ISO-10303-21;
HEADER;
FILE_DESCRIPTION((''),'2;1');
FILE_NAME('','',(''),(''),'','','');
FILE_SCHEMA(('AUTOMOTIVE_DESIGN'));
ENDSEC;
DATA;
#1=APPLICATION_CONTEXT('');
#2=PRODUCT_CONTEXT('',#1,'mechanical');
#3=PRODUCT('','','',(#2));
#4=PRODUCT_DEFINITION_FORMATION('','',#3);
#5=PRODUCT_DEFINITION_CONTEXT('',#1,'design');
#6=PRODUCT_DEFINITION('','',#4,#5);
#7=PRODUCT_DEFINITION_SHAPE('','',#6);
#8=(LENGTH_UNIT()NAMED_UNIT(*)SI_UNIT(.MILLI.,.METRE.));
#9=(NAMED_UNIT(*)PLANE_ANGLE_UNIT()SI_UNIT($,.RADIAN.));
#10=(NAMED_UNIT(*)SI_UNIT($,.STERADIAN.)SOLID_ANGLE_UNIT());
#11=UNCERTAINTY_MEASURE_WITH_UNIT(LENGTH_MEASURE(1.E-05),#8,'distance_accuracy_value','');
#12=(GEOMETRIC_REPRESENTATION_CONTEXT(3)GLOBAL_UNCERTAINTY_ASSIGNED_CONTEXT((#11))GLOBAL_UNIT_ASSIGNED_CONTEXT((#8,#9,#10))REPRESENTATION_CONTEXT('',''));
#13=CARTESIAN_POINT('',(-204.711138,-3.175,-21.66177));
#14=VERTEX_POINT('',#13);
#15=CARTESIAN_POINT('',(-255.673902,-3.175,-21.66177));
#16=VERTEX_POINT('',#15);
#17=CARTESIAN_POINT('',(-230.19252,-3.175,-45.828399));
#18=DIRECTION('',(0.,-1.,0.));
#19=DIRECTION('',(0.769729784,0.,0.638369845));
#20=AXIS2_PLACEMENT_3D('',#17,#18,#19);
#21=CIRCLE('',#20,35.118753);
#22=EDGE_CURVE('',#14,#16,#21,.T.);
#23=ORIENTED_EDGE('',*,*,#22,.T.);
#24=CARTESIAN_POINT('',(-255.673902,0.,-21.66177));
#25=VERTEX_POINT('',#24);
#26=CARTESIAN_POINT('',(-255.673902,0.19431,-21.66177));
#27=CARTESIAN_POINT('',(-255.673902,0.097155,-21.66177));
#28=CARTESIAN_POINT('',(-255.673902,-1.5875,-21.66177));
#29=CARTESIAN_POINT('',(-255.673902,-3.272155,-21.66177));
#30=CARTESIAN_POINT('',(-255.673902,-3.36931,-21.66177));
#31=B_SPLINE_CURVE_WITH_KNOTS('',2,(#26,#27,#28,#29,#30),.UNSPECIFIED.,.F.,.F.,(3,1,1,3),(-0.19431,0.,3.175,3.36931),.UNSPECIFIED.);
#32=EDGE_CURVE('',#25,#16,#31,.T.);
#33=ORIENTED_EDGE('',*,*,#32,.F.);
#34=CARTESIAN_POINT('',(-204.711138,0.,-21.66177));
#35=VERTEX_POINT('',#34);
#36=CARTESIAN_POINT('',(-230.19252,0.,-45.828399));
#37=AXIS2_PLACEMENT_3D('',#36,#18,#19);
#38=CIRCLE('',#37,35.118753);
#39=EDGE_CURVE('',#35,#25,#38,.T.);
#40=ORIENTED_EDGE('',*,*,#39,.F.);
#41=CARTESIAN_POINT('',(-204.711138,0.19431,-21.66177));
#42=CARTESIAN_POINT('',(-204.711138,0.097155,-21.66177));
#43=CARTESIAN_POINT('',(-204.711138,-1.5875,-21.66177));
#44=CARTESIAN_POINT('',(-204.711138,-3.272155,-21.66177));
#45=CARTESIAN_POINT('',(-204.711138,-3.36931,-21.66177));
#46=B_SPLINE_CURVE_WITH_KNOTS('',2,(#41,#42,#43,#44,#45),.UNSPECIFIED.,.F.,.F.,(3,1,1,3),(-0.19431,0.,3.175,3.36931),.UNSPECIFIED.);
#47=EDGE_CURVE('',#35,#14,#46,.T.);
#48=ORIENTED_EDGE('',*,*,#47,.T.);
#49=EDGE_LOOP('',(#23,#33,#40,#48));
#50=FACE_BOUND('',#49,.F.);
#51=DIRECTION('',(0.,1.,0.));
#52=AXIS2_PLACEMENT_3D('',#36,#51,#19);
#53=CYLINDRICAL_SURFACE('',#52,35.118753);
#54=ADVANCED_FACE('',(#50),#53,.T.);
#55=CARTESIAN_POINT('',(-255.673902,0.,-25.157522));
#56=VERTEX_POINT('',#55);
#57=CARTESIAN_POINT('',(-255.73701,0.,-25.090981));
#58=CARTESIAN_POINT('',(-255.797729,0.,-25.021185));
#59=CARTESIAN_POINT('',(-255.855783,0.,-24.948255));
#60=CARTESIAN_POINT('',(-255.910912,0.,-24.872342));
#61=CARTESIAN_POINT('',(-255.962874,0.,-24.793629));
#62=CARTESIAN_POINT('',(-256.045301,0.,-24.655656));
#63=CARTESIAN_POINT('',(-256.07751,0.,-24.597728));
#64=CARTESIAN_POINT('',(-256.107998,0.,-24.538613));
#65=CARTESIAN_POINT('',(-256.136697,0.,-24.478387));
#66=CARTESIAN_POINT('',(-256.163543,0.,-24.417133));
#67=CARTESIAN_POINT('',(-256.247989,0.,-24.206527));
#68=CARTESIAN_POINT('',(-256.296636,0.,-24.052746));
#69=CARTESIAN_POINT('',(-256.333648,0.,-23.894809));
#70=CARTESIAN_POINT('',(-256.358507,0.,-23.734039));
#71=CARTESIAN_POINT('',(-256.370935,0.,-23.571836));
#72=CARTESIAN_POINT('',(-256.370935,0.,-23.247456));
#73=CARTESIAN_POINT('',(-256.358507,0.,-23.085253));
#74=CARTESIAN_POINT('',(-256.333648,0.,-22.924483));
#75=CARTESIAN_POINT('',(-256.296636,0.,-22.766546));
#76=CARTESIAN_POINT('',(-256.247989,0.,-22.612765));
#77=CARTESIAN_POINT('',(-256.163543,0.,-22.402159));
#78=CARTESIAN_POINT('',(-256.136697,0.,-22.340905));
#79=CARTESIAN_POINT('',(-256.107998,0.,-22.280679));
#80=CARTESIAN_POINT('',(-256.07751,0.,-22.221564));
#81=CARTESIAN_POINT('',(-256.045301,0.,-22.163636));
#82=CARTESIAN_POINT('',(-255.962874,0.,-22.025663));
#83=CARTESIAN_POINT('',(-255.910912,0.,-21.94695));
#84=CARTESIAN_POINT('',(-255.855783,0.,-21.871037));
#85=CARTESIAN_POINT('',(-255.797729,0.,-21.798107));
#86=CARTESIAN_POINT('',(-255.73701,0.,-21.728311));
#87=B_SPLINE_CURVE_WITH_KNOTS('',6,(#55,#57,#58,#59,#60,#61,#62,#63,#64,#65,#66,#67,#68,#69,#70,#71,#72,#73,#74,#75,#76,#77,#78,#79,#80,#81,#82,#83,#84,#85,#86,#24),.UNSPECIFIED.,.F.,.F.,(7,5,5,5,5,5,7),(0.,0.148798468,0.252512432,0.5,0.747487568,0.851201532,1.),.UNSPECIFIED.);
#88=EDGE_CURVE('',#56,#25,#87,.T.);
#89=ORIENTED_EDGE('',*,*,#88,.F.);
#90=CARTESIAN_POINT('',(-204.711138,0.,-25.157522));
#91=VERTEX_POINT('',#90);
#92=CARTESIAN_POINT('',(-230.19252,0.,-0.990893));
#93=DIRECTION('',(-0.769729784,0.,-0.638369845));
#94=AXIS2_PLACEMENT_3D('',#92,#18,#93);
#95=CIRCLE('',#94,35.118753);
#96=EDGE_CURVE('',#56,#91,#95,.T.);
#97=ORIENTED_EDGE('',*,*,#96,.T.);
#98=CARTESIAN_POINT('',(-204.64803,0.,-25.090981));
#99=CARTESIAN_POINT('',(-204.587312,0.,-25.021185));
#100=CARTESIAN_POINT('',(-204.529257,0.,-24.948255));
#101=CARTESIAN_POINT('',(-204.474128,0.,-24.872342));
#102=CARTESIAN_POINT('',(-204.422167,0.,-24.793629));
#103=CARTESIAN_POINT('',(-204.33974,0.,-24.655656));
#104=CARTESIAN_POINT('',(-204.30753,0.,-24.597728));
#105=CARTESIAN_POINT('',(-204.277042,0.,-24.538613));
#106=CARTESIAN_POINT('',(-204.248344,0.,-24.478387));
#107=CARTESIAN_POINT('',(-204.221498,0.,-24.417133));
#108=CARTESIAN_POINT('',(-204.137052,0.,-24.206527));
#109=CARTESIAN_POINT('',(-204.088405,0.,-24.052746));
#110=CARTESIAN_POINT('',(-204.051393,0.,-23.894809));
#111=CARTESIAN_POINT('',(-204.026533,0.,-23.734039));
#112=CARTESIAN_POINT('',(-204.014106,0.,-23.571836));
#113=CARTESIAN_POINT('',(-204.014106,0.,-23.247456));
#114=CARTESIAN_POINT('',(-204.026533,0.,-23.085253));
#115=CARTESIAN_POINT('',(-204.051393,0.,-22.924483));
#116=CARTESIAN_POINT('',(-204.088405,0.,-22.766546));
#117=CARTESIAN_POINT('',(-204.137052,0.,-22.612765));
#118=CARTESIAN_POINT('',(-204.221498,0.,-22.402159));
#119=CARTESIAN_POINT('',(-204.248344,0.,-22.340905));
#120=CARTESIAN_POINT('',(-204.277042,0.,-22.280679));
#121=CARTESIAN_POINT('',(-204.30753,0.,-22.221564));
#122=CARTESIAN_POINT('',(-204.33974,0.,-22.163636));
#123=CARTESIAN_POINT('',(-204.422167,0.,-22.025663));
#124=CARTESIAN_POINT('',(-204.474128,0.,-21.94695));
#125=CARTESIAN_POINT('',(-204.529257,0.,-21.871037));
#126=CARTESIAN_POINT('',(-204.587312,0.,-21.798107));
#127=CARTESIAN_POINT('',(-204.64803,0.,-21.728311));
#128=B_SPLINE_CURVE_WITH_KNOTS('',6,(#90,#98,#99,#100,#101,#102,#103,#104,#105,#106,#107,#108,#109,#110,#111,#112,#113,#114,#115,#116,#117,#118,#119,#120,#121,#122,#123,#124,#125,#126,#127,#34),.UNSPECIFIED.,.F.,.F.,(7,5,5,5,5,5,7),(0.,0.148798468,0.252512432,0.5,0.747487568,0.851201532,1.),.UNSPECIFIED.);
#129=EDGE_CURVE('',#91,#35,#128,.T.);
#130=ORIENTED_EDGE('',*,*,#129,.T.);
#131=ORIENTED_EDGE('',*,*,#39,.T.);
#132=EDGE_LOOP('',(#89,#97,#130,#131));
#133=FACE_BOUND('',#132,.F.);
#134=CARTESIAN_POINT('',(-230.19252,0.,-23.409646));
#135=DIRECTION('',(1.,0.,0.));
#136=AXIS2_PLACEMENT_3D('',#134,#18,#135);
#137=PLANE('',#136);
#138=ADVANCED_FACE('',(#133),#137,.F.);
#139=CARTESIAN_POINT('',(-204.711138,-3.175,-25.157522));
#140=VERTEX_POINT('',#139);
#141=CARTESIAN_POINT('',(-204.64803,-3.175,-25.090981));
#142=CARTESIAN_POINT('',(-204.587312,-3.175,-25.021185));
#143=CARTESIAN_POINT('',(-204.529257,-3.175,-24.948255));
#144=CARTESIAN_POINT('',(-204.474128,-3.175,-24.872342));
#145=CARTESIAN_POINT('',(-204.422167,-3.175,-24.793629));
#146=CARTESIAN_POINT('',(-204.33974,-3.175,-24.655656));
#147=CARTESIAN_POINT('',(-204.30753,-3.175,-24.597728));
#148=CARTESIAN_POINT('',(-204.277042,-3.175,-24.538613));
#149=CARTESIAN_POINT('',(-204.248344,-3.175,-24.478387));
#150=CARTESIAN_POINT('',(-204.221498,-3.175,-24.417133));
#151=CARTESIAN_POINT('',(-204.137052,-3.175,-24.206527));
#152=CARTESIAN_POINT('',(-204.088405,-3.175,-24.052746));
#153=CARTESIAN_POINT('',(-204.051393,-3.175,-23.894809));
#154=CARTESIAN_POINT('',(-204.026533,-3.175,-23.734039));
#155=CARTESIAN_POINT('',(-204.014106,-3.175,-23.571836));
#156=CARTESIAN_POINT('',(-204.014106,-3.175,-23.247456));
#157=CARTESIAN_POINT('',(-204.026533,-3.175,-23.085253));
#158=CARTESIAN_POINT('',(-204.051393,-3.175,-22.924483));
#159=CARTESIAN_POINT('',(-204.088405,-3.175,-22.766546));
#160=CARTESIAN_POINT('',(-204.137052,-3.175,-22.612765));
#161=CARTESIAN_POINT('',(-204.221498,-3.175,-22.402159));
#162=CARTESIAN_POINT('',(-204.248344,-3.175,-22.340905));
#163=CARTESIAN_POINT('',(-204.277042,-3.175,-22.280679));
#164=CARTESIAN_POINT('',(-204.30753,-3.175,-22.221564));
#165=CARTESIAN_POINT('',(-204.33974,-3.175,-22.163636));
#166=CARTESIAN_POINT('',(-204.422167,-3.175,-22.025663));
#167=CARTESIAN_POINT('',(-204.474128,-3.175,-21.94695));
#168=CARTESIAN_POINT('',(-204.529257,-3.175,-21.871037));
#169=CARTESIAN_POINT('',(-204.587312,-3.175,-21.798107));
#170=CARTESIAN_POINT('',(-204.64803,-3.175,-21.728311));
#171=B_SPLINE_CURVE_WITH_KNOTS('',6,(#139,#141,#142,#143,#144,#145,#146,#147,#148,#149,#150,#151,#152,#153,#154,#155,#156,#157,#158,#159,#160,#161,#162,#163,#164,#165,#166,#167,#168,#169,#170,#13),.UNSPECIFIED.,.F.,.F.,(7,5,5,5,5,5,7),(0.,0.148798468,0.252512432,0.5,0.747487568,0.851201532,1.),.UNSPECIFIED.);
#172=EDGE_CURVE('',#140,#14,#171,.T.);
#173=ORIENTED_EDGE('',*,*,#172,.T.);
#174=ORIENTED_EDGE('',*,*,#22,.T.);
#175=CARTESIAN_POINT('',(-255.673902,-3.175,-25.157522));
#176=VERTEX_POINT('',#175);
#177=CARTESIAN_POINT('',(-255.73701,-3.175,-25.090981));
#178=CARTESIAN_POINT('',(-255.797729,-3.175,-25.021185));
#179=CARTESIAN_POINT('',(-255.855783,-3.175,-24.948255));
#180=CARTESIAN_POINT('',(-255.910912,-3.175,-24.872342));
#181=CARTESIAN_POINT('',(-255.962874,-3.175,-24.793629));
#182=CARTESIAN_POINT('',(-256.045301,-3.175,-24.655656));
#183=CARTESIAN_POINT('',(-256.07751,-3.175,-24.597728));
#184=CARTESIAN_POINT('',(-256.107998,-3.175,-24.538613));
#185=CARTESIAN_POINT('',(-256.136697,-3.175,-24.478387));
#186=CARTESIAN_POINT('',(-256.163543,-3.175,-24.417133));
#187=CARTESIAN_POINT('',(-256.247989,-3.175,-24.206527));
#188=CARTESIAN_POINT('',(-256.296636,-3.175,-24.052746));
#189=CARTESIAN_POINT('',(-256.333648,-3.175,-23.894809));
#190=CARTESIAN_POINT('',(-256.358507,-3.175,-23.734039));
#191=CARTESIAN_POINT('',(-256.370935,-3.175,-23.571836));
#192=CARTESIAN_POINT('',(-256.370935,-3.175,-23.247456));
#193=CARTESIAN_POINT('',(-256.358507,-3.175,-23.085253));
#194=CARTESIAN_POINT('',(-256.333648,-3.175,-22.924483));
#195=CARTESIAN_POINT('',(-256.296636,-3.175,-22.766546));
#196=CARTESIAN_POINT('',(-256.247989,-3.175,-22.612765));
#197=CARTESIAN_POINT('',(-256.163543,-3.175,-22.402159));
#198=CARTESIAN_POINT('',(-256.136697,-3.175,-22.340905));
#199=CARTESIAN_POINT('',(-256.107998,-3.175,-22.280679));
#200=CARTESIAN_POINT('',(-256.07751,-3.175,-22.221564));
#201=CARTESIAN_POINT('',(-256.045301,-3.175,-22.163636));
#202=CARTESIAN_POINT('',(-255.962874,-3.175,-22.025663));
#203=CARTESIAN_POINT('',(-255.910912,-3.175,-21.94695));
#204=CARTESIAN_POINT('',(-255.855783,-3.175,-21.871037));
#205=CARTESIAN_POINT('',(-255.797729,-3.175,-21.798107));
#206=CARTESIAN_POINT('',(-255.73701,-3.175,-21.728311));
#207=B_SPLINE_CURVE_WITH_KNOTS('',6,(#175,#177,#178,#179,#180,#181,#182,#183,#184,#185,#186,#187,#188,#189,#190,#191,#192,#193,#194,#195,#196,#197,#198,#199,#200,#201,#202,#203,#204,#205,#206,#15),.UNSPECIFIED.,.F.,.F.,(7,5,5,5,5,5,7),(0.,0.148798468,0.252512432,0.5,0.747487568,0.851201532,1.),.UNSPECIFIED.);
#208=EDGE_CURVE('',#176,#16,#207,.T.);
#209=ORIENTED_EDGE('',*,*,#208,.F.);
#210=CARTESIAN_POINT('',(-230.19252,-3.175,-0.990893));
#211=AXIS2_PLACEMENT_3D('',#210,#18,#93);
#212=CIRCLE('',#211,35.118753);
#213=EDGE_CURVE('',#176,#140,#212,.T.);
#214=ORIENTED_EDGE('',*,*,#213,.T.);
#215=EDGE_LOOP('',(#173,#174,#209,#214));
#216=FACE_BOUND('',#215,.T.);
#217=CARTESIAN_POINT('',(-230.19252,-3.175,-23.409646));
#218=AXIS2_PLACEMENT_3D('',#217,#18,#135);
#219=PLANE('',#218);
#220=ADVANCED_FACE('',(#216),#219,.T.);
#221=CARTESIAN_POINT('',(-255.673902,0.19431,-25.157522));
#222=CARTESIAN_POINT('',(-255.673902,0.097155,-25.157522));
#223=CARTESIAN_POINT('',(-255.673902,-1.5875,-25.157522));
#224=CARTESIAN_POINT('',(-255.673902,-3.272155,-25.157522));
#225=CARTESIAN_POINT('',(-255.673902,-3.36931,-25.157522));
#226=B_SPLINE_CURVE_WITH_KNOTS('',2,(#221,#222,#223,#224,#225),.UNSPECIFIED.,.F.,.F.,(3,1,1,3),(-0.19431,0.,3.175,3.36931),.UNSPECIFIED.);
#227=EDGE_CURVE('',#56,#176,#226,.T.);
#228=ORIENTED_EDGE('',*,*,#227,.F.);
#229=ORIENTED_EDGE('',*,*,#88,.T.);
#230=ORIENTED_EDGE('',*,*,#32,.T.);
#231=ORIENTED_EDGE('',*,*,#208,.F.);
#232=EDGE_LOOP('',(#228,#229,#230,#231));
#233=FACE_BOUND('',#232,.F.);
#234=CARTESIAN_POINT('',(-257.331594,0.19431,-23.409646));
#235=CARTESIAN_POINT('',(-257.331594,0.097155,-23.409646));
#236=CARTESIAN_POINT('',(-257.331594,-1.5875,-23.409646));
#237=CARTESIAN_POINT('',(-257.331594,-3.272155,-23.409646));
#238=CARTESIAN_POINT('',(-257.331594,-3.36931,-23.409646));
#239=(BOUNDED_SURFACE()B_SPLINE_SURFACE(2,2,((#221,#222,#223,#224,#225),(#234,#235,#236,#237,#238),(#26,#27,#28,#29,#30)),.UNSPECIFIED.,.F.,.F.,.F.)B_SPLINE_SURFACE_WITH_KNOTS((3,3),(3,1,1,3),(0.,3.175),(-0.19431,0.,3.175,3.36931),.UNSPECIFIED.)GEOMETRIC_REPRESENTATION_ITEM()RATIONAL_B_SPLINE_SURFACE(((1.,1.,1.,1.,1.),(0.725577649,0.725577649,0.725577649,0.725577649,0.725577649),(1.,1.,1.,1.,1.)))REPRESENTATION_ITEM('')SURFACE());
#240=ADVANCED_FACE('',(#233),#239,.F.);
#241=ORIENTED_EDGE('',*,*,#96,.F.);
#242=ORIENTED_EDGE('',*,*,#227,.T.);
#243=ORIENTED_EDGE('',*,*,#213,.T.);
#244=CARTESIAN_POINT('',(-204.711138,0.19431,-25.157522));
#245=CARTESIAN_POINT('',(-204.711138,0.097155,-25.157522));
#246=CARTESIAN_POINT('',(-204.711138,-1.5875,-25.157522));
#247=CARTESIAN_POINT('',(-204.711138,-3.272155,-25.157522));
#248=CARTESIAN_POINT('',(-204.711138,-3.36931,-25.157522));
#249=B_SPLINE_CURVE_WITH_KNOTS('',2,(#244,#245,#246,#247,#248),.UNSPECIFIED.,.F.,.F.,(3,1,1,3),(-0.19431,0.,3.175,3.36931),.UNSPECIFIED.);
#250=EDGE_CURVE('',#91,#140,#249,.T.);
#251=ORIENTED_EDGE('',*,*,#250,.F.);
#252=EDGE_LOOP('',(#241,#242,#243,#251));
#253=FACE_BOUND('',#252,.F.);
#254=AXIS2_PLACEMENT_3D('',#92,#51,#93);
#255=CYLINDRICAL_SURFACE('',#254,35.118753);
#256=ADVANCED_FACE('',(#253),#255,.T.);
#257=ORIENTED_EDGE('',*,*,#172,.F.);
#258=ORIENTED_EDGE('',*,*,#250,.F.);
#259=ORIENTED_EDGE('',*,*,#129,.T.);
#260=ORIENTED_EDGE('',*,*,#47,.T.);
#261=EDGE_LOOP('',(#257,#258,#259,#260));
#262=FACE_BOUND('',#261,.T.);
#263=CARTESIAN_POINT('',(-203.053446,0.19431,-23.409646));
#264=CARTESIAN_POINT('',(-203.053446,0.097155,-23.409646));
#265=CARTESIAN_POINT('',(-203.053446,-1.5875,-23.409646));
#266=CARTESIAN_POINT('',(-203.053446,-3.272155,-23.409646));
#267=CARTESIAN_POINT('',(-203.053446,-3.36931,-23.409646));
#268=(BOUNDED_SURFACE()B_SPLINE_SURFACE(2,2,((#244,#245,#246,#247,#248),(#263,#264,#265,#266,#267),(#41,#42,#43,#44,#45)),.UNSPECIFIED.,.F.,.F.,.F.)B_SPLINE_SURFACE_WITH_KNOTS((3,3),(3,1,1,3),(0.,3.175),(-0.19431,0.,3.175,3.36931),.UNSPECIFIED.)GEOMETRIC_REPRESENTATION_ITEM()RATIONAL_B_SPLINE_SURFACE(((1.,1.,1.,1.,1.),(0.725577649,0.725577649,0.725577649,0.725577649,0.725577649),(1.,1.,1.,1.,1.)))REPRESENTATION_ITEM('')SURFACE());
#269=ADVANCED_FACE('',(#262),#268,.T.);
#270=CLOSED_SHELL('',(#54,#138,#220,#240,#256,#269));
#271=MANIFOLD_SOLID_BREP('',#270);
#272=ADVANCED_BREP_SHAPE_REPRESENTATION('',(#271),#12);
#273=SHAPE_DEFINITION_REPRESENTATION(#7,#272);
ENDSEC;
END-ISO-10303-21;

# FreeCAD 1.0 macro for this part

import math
import FreeCAD as App
import Part
import Sketcher
from FreeCAD import Vector
Q = App.Units.Quantity


def edges_at(feature, points):
    """Names of the edges that pass closest to the given points."""
    edges = feature.Shape.Edges
    near = lambda p: min(range(len(edges)), key=lambda i: edges[i].distToShape(Part.Vertex(*p))[0])
    return sorted({f"Edge{near(p) + 1}" for p in points})

doc = App.newDocument("Part")
body = doc.addObject("PartDesign::Body", "Body")

sketch1 = doc.addObject("Sketcher::SketchObject", "Sketch")
body.addObject(sketch1)
sketch1.AttachmentSupport = (doc.XZ_Plane, [""])
sketch1.MapMode = "FlatFace"
sketch1.addGeometry(Part.ArcOfCircle(Part.Circle(Vector(-230, -1, 0), Vector(0, 0, 1), 35), math.radians(-140), math.radians(-40)), False)
sketch1.addGeometry(Part.ArcOfCircle(Part.Circle(Vector(-230, -46, 0), Vector(0, 0, 1), 35), math.radians(40), math.radians(140)), False)
sketch1.addConstraint(Sketcher.Constraint("Coincident", 0, 1, 1, 2))
sketch1.addConstraint(Sketcher.Constraint("Coincident", 1, 1, 0, 2))
sketch1.addConstraint(Sketcher.Constraint("Equal", 0, 1))
sketch1.addConstraint(Sketcher.Constraint("Horizontal", 0, 1, 1, 1))
sketch1.addConstraint(Sketcher.Constraint("Radius", 0, 35.118753))
sketch1.addConstraint(Sketcher.Constraint("DistanceX", 0, 1, 1, 1, Q("2.1285 in")))
sketch1.addConstraint(Sketcher.Constraint("DistanceY", 1, 3, -1, 1, 45.828399))
sketch1.addConstraint(Sketcher.Constraint("DistanceX", 0, 3, -1, 1, 230.19252))
pad1 = doc.addObject("PartDesign::Pad", "Pad")
body.addObject(pad1)
pad1.Profile = sketch1
pad1.Length = Q("0.125 in")
doc.recompute()

fillet = doc.addObject("PartDesign::Fillet", "Fillet")
body.addObject(fillet)
fillet.Base = (pad1, edges_at(pad1, [(-203.161, -1.587, -23.41)]))
fillet.Radius = Q("0.1 in")
doc.recompute()

fillet2 = doc.addObject("PartDesign::Fillet", "Fillet001")
body.addObject(fillet2)
fillet2.Base = (fillet, edges_at(fillet, [(-257.224, -1.587, -23.41)]))
fillet2.Radius = Q("0.1 in")

doc.recompute()
